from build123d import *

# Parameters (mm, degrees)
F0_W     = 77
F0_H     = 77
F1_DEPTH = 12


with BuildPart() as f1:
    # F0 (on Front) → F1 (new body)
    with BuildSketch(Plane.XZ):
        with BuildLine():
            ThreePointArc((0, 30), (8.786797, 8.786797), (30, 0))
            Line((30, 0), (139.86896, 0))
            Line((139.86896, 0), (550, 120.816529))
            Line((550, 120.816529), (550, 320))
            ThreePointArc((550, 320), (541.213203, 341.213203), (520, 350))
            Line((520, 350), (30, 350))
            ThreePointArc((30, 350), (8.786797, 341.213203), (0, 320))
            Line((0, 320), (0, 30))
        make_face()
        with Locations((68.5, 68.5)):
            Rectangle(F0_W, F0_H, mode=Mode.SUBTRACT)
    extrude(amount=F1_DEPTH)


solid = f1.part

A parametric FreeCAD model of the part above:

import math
import FreeCAD as App
import Part
import Sketcher
Q = App.Units.Quantity


def add_polygon(sketch, points):
    """Adds a closed chain of lines whose ends are joined by coincident constraints."""
    first, n = sketch.GeometryCount, len(points)
    for a, b in zip(points, points[1:] + points[:1]):
        sketch.addGeometry(Part.LineSegment(App.Vector(*a, 0), App.Vector(*b, 0)), False)
    for i in range(n):
        sketch.addConstraint(Sketcher.Constraint("Coincident", first + i, 2, first + (i + 1) % n, 1))

doc = App.newDocument("Part")
body = doc.addObject("PartDesign::Body", "Body")

# Sketch on XZ plane
sketch1 = body.newObject("Sketcher::SketchObject", "Sketch")
sketch1.AttachmentSupport = (doc.getObject("XZ_Plane"), [""])
sketch1.MapMode = "FlatFace"
sketch1.addGeometry(Part.ArcOfCircle(Part.Circle(App.Vector(30, 30, 0), App.Vector(0, 0, 1), 30), math.radians(-180), math.radians(-90)), False)  # 0
sketch1.addGeometry(Part.LineSegment(App.Vector(30, 0, 0), App.Vector(140, 0, 0)), False)  # 1
sketch1.addGeometry(Part.LineSegment(App.Vector(140, 0, 0), App.Vector(550, 121, 0)), False)  # 2
sketch1.addGeometry(Part.LineSegment(App.Vector(550, 121, 0), App.Vector(550, 320, 0)), False)  # 3
sketch1.addGeometry(Part.ArcOfCircle(Part.Circle(App.Vector(520, 320, 0), App.Vector(0, 0, 1), 30), math.radians(0), math.radians(90)), False)  # 4
sketch1.addGeometry(Part.LineSegment(App.Vector(520, 350, 0), App.Vector(30, 350, 0)), False)  # 5
sketch1.addGeometry(Part.ArcOfCircle(Part.Circle(App.Vector(30, 320, 0), App.Vector(0, 0, 1), 30), math.radians(90), math.radians(180)), False)  # 6
sketch1.addGeometry(Part.LineSegment(App.Vector(0, 320, 0), App.Vector(0, 30, 0)), False)  # 7
add_polygon(sketch1, [(107, 30), (30, 30), (30, 107), (107, 107)])  # lines 8-11
sketch1.addConstraint(Sketcher.Constraint("Tangent", 0, 2, 1, 1))
sketch1.addConstraint(Sketcher.Constraint("Coincident", 1, 2, 2, 1))
sketch1.addConstraint(Sketcher.Constraint("Coincident", 2, 2, 3, 1))
sketch1.addConstraint(Sketcher.Constraint("Tangent", 3, 2, 4, 1))
sketch1.addConstraint(Sketcher.Constraint("Tangent", 4, 2, 5, 1))
sketch1.addConstraint(Sketcher.Constraint("Tangent", 5, 2, 6, 1))
sketch1.addConstraint(Sketcher.Constraint("Tangent", 6, 2, 7, 1))
sketch1.addConstraint(Sketcher.Constraint("Tangent", 7, 2, 0, 1))
sketch1.addConstraint(Sketcher.Constraint("Horizontal", 1))
sketch1.addConstraint(Sketcher.Constraint("Vertical", 3))
sketch1.addConstraint(Sketcher.Constraint("Horizontal", 5))
sketch1.addConstraint(Sketcher.Constraint("Vertical", 7))
sketch1.addConstraint(Sketcher.Constraint("Horizontal", 8))
sketch1.addConstraint(Sketcher.Constraint("Vertical", 9))
sketch1.addConstraint(Sketcher.Constraint("Horizontal", 10))
sketch1.addConstraint(Sketcher.Constraint("Vertical", 11))
sketch1.addConstraint(Sketcher.Constraint("Coincident", 8, 2, 0, 3))
sketch1.addConstraint(Sketcher.Constraint("Equal", 0, 4))
sketch1.addConstraint(Sketcher.Constraint("Equal", 4, 6))
sketch1.addConstraint(Sketcher.Constraint("PointOnObject", 0, 2, -1))
sketch1.addConstraint(Sketcher.Constraint("PointOnObject", 6, 2, -2))
sketch1.addConstraint(Sketcher.Constraint("Equal", 10, 9))
sketch1.addConstraint(Sketcher.Constraint("Radius", 0, Q("30.000001 mm")))
sketch1.addConstraint(Sketcher.Constraint("DistanceX", 5, 2, 5, 1, Q("490 mm")))
sketch1.addConstraint(Sketcher.Constraint("DistanceX", 8, 2, 8, 1, Q("77 mm")))
sketch1.addConstraint(Sketcher.Constraint("DistanceY", 7, 2, 7, 1, Q("290 mm")))
sketch1.addConstraint(Sketcher.Constraint("DistanceX", 1, 1, 1, 2, Q("109.86896 mm")))
sketch1.addConstraint(Sketcher.Constraint("DistanceY", 3, 1, 3, 2, Q("199.183471 mm")))
pad1 = body.newObject("PartDesign::Pad", "Pad")
pad1.Profile = sketch1
pad1.Length = 12

doc.recompute()
